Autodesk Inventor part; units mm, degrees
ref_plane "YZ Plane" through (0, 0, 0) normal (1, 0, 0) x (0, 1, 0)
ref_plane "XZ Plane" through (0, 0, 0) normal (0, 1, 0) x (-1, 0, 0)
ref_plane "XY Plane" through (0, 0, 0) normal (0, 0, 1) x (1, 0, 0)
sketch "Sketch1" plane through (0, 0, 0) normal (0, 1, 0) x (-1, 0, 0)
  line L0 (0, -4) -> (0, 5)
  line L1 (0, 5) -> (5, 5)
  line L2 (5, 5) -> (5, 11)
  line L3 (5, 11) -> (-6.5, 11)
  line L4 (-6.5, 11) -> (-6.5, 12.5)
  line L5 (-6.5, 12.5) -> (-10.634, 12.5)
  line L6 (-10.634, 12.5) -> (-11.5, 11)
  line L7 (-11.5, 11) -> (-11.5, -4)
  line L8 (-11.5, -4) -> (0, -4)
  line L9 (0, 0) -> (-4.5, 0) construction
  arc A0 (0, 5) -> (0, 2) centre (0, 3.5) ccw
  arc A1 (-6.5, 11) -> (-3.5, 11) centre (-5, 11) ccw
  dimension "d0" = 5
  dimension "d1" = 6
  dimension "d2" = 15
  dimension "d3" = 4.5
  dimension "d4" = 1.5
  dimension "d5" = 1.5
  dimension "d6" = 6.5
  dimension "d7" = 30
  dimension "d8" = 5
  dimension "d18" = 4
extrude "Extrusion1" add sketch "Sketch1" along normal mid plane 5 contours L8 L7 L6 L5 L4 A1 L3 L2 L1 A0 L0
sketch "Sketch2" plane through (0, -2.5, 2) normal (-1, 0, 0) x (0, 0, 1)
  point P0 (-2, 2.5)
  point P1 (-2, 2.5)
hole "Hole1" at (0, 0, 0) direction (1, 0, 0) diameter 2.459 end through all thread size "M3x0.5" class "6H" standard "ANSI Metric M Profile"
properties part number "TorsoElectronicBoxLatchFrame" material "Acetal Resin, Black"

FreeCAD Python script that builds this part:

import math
import FreeCAD as App
import Part
import Sketcher

V = App.Vector
Q = App.Units.Quantity

doc = App.newDocument("Part")
body = doc.addObject("PartDesign::Body", "Body")

# Sketch on XZ plane
sketch1 = doc.addObject("Sketcher::SketchObject", "Sketch")
body.addObject(sketch1)
sketch1.AttachmentSupport = (doc.XZ_Plane, [""])
sketch1.MapMode = "FlatFace"
sketch1.addGeometry(Part.LineSegment(V(11.5, -4, 0), V(0, -4, 0)), False)
sketch1.addGeometry(Part.LineSegment(V(0, -4, 0), V(0, 2, 0)), False)
sketch1.addGeometry(Part.ArcOfCircle(Part.Circle(V(0, 3.5, 0), V(0, 0, 1), 1.5), math.radians(-90), math.radians(90)), False)
sketch1.addGeometry(Part.LineSegment(V(0, 5, 0), V(-5, 5, 0)), False)
sketch1.addGeometry(Part.LineSegment(V(-5, 5, 0), V(-5, 11, 0)), False)
sketch1.addGeometry(Part.LineSegment(V(-5, 11, 0), V(3.5, 11, 0)), False)
sketch1.addGeometry(Part.ArcOfCircle(Part.Circle(V(5, 11, 0), V(0, 0, 1), 1.5), math.radians(180), math.radians(360)), False)
sketch1.addGeometry(Part.LineSegment(V(6.5, 11, 0), V(6.5, 12.5, 0)), False)
sketch1.addGeometry(Part.LineSegment(V(6.5, 12.5, 0), V(10.6, 12.5, 0)), False)
sketch1.addGeometry(Part.LineSegment(V(10.6, 12.5, 0), V(11.5, 11, 0)), False)
sketch1.addGeometry(Part.LineSegment(V(11.5, 11, 0), V(11.5, -4, 0)), False)
sketch1.addConstraint(Sketcher.Constraint("Coincident", 0, 2, 1, 1))
sketch1.addConstraint(Sketcher.Constraint("Coincident", 1, 2, 2, 1))
sketch1.addConstraint(Sketcher.Constraint("Tangent", 2, 2, 3, 1))
sketch1.addConstraint(Sketcher.Constraint("Coincident", 3, 2, 4, 1))
sketch1.addConstraint(Sketcher.Constraint("Coincident", 4, 2, 5, 1))
sketch1.addConstraint(Sketcher.Constraint("Coincident", 5, 2, 6, 1))
sketch1.addConstraint(Sketcher.Constraint("Tangent", 6, 2, 7, 1))
sketch1.addConstraint(Sketcher.Constraint("Coincident", 7, 2, 8, 1))
sketch1.addConstraint(Sketcher.Constraint("Coincident", 8, 2, 9, 1))
sketch1.addConstraint(Sketcher.Constraint("Coincident", 9, 2, 10, 1))
sketch1.addConstraint(Sketcher.Constraint("Coincident", 10, 2, 0, 1))
sketch1.addConstraint(Sketcher.Constraint("Horizontal", 0))
sketch1.addConstraint(Sketcher.Constraint("Vertical", 1))
sketch1.addConstraint(Sketcher.Constraint("Horizontal", 3))
sketch1.addConstraint(Sketcher.Constraint("Vertical", 4))
sketch1.addConstraint(Sketcher.Constraint("Horizontal", 5))
sketch1.addConstraint(Sketcher.Constraint("Vertical", 7))
sketch1.addConstraint(Sketcher.Constraint("Horizontal", 8))
sketch1.addConstraint(Sketcher.Constraint("Vertical", 10))
sketch1.addConstraint(Sketcher.Constraint("Equal", 2, 6))
sketch1.addConstraint(Sketcher.Constraint("PointOnObject", 2, 3, -2))
sketch1.addConstraint(Sketcher.Constraint("PointOnObject", 0, 2, -2))
sketch1.addConstraint(Sketcher.Constraint("Horizontal", 6, 3, 4, 2))
sketch1.addConstraint(Sketcher.Constraint("Horizontal", 6, 2, 9, 2))
sketch1.addConstraint(Sketcher.Constraint("Equal", 1, 4))
sketch1.addConstraint(Sketcher.Constraint("Radius", 2, Q("1.5 mm")))
sketch1.addConstraint(Sketcher.Constraint("DistanceX", 3, 2, 3, 1, Q("5 mm")))
sketch1.addConstraint(Sketcher.Constraint("DistanceY", 1, 1, 1, 2, Q("6 mm")))
sketch1.addConstraint(Sketcher.Constraint("DistanceY", 7, 1, 7, 2, Q("1.5 mm")))
sketch1.addConstraint(Sketcher.Constraint("DistanceX", -1, 1, 6, 3, Q("5 mm")))
sketch1.addConstraint(Sketcher.Constraint("DistanceY", 0, 2, -1, 1, Q("4 mm")))
sketch1.addConstraint(Sketcher.Constraint("DistanceX", 6, 2, 9, 2, Q("5 mm")))
sketch1.addConstraint(Sketcher.Constraint("Angle", 9, Q("-60.0007 deg")))
pad1 = doc.addObject("PartDesign::Pad", "Pad")
body.addObject(pad1)
pad1.Profile = sketch1
pad1.Length = 5
pad1.Midplane = True

# Sketch on YZ plane
sketch2 = doc.addObject("Sketcher::SketchObject", "Sketch001")
body.addObject(sketch2)
sketch2.AttachmentSupport = (doc.YZ_Plane, [""])
sketch2.MapMode = "FlatFace"
sketch2.addGeometry(Part.Circle(V(0, 0, 0), V(0, 0, 1), 1.2), False)
sketch2.addConstraint(Sketcher.Constraint("Coincident", 0, 3, -1, 1))
sketch2.addConstraint(Sketcher.Constraint("Diameter", 0, Q("2.459 mm")))
doc.recompute()
hole = doc.addObject("PartDesign::Hole", "Hole")
body.addObject(hole)
hole.Profile = sketch2
hole.ThreadType = "None"
hole.Diameter = 2.459
hole.DepthType = "ThroughAll"
hole.Reversed = True

doc.recompute()
